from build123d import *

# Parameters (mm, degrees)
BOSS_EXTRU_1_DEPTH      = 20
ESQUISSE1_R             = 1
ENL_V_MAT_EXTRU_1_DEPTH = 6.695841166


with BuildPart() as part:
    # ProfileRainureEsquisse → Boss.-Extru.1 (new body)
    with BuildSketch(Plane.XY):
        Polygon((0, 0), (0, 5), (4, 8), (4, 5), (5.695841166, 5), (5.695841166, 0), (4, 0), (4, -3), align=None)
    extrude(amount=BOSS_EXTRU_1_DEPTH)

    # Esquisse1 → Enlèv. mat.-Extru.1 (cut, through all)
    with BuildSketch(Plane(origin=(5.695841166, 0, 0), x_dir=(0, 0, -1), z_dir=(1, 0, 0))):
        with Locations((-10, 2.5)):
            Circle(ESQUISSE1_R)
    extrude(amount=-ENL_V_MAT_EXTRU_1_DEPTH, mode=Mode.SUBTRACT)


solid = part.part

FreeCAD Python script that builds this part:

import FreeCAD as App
import Part
import Sketcher
from FreeCAD import Vector
Q = App.Units.Quantity

doc = App.newDocument("Part")
body = doc.addObject("PartDesign::Body", "Body")

# Sketch on XY plane
sketch1 = body.newObject("Sketcher::SketchObject", "Sketch")
sketch1.AttachmentSupport = (doc.getObject("XY_Plane"), [""])
sketch1.MapMode = "FlatFace"
sketch1.addGeometry([
    Part.LineSegment(Vector(0, 5, 0), Vector(0, 0, 0)),  # 0
    Part.LineSegment(Vector(0, 0, 0), Vector(4, -3, 0)),  # 1
    Part.LineSegment(Vector(4, -3, 0), Vector(4, 0, 0)),  # 2
    Part.LineSegment(Vector(4, 0, 0), Vector(5.7, 0, 0)),  # 3
    Part.LineSegment(Vector(5.7, 0, 0), Vector(5.7, 5, 0)),  # 4
    Part.LineSegment(Vector(5.7, 5, 0), Vector(4, 5, 0)),  # 5
    Part.LineSegment(Vector(4, 5, 0), Vector(4, 8, 0)),  # 6
    Part.LineSegment(Vector(4, 8, 0), Vector(0, 5, 0)),  # 7
], False)
sketch1.addConstraint([
    Sketcher.Constraint("Coincident", 0, 2, 1, 1),
    Sketcher.Constraint("Coincident", 1, 2, 2, 1),
    Sketcher.Constraint("Coincident", 2, 2, 3, 1),
    Sketcher.Constraint("Coincident", 3, 2, 4, 1),
    Sketcher.Constraint("Coincident", 4, 2, 5, 1),
    Sketcher.Constraint("Coincident", 5, 2, 6, 1),
    Sketcher.Constraint("Coincident", 6, 2, 7, 1),
    Sketcher.Constraint("Coincident", 7, 2, 0, 1),
    Sketcher.Constraint("Vertical", 0),
    Sketcher.Constraint("Vertical", 2),
    Sketcher.Constraint("Horizontal", 3),
    Sketcher.Constraint("Vertical", 4),
    Sketcher.Constraint("Horizontal", 5),
    Sketcher.Constraint("Vertical", 6),
    Sketcher.Constraint("Coincident", 0, 2, -1, 1),
    Sketcher.Constraint("PointOnObject", 2, 2, -1),
    Sketcher.Constraint("Horizontal", 5, 2, 7, 2),
    Sketcher.Constraint("Vertical", 2, 2, 5, 2),
    Sketcher.Constraint("Equal", 2, 6),
    Sketcher.Constraint("DistanceY", 0, 2, 0, 1, Q("5 mm")),
    Sketcher.Constraint("DistanceY", 2, 1, 2, 2, Q("3 mm")),
    Sketcher.Constraint("Distance", 1, Q("5 mm")),
    Sketcher.Constraint("DistanceX", 3, 1, 3, 2, Q("1.695841 mm")),
])
pad1 = body.newObject("PartDesign::Pad", "Pad")
pad1.Profile = sketch1
pad1.Length = 20

# Sketch on YZ plane
sketch2 = body.newObject("Sketcher::SketchObject", "Sketch001")
sketch2.AttachmentSupport = (doc.getObject("YZ_Plane"), [""])
sketch2.MapMode = "FlatFace"
sketch2.AttachmentOffset = App.Placement(Vector(0, 0, 5.695841), App.Rotation())
sketch2.addGeometry(Part.Circle(Vector(2.5, 10, 0), Vector(0, 0, 1), 1), False)
sketch2.addConstraint([
    Sketcher.Constraint("Diameter", 0, Q("2 mm")),
    Sketcher.Constraint("DistanceY", -1, 1, 0, 3, Q("10 mm")),
    Sketcher.Constraint("DistanceX", -1, 1, 0, 3, Q("2.5 mm")),
])
pocket1 = body.newObject("PartDesign::Pocket", "Pocket")
pocket1.Profile = sketch2
pocket1.Type = "ThroughAll"

doc.recompute()
